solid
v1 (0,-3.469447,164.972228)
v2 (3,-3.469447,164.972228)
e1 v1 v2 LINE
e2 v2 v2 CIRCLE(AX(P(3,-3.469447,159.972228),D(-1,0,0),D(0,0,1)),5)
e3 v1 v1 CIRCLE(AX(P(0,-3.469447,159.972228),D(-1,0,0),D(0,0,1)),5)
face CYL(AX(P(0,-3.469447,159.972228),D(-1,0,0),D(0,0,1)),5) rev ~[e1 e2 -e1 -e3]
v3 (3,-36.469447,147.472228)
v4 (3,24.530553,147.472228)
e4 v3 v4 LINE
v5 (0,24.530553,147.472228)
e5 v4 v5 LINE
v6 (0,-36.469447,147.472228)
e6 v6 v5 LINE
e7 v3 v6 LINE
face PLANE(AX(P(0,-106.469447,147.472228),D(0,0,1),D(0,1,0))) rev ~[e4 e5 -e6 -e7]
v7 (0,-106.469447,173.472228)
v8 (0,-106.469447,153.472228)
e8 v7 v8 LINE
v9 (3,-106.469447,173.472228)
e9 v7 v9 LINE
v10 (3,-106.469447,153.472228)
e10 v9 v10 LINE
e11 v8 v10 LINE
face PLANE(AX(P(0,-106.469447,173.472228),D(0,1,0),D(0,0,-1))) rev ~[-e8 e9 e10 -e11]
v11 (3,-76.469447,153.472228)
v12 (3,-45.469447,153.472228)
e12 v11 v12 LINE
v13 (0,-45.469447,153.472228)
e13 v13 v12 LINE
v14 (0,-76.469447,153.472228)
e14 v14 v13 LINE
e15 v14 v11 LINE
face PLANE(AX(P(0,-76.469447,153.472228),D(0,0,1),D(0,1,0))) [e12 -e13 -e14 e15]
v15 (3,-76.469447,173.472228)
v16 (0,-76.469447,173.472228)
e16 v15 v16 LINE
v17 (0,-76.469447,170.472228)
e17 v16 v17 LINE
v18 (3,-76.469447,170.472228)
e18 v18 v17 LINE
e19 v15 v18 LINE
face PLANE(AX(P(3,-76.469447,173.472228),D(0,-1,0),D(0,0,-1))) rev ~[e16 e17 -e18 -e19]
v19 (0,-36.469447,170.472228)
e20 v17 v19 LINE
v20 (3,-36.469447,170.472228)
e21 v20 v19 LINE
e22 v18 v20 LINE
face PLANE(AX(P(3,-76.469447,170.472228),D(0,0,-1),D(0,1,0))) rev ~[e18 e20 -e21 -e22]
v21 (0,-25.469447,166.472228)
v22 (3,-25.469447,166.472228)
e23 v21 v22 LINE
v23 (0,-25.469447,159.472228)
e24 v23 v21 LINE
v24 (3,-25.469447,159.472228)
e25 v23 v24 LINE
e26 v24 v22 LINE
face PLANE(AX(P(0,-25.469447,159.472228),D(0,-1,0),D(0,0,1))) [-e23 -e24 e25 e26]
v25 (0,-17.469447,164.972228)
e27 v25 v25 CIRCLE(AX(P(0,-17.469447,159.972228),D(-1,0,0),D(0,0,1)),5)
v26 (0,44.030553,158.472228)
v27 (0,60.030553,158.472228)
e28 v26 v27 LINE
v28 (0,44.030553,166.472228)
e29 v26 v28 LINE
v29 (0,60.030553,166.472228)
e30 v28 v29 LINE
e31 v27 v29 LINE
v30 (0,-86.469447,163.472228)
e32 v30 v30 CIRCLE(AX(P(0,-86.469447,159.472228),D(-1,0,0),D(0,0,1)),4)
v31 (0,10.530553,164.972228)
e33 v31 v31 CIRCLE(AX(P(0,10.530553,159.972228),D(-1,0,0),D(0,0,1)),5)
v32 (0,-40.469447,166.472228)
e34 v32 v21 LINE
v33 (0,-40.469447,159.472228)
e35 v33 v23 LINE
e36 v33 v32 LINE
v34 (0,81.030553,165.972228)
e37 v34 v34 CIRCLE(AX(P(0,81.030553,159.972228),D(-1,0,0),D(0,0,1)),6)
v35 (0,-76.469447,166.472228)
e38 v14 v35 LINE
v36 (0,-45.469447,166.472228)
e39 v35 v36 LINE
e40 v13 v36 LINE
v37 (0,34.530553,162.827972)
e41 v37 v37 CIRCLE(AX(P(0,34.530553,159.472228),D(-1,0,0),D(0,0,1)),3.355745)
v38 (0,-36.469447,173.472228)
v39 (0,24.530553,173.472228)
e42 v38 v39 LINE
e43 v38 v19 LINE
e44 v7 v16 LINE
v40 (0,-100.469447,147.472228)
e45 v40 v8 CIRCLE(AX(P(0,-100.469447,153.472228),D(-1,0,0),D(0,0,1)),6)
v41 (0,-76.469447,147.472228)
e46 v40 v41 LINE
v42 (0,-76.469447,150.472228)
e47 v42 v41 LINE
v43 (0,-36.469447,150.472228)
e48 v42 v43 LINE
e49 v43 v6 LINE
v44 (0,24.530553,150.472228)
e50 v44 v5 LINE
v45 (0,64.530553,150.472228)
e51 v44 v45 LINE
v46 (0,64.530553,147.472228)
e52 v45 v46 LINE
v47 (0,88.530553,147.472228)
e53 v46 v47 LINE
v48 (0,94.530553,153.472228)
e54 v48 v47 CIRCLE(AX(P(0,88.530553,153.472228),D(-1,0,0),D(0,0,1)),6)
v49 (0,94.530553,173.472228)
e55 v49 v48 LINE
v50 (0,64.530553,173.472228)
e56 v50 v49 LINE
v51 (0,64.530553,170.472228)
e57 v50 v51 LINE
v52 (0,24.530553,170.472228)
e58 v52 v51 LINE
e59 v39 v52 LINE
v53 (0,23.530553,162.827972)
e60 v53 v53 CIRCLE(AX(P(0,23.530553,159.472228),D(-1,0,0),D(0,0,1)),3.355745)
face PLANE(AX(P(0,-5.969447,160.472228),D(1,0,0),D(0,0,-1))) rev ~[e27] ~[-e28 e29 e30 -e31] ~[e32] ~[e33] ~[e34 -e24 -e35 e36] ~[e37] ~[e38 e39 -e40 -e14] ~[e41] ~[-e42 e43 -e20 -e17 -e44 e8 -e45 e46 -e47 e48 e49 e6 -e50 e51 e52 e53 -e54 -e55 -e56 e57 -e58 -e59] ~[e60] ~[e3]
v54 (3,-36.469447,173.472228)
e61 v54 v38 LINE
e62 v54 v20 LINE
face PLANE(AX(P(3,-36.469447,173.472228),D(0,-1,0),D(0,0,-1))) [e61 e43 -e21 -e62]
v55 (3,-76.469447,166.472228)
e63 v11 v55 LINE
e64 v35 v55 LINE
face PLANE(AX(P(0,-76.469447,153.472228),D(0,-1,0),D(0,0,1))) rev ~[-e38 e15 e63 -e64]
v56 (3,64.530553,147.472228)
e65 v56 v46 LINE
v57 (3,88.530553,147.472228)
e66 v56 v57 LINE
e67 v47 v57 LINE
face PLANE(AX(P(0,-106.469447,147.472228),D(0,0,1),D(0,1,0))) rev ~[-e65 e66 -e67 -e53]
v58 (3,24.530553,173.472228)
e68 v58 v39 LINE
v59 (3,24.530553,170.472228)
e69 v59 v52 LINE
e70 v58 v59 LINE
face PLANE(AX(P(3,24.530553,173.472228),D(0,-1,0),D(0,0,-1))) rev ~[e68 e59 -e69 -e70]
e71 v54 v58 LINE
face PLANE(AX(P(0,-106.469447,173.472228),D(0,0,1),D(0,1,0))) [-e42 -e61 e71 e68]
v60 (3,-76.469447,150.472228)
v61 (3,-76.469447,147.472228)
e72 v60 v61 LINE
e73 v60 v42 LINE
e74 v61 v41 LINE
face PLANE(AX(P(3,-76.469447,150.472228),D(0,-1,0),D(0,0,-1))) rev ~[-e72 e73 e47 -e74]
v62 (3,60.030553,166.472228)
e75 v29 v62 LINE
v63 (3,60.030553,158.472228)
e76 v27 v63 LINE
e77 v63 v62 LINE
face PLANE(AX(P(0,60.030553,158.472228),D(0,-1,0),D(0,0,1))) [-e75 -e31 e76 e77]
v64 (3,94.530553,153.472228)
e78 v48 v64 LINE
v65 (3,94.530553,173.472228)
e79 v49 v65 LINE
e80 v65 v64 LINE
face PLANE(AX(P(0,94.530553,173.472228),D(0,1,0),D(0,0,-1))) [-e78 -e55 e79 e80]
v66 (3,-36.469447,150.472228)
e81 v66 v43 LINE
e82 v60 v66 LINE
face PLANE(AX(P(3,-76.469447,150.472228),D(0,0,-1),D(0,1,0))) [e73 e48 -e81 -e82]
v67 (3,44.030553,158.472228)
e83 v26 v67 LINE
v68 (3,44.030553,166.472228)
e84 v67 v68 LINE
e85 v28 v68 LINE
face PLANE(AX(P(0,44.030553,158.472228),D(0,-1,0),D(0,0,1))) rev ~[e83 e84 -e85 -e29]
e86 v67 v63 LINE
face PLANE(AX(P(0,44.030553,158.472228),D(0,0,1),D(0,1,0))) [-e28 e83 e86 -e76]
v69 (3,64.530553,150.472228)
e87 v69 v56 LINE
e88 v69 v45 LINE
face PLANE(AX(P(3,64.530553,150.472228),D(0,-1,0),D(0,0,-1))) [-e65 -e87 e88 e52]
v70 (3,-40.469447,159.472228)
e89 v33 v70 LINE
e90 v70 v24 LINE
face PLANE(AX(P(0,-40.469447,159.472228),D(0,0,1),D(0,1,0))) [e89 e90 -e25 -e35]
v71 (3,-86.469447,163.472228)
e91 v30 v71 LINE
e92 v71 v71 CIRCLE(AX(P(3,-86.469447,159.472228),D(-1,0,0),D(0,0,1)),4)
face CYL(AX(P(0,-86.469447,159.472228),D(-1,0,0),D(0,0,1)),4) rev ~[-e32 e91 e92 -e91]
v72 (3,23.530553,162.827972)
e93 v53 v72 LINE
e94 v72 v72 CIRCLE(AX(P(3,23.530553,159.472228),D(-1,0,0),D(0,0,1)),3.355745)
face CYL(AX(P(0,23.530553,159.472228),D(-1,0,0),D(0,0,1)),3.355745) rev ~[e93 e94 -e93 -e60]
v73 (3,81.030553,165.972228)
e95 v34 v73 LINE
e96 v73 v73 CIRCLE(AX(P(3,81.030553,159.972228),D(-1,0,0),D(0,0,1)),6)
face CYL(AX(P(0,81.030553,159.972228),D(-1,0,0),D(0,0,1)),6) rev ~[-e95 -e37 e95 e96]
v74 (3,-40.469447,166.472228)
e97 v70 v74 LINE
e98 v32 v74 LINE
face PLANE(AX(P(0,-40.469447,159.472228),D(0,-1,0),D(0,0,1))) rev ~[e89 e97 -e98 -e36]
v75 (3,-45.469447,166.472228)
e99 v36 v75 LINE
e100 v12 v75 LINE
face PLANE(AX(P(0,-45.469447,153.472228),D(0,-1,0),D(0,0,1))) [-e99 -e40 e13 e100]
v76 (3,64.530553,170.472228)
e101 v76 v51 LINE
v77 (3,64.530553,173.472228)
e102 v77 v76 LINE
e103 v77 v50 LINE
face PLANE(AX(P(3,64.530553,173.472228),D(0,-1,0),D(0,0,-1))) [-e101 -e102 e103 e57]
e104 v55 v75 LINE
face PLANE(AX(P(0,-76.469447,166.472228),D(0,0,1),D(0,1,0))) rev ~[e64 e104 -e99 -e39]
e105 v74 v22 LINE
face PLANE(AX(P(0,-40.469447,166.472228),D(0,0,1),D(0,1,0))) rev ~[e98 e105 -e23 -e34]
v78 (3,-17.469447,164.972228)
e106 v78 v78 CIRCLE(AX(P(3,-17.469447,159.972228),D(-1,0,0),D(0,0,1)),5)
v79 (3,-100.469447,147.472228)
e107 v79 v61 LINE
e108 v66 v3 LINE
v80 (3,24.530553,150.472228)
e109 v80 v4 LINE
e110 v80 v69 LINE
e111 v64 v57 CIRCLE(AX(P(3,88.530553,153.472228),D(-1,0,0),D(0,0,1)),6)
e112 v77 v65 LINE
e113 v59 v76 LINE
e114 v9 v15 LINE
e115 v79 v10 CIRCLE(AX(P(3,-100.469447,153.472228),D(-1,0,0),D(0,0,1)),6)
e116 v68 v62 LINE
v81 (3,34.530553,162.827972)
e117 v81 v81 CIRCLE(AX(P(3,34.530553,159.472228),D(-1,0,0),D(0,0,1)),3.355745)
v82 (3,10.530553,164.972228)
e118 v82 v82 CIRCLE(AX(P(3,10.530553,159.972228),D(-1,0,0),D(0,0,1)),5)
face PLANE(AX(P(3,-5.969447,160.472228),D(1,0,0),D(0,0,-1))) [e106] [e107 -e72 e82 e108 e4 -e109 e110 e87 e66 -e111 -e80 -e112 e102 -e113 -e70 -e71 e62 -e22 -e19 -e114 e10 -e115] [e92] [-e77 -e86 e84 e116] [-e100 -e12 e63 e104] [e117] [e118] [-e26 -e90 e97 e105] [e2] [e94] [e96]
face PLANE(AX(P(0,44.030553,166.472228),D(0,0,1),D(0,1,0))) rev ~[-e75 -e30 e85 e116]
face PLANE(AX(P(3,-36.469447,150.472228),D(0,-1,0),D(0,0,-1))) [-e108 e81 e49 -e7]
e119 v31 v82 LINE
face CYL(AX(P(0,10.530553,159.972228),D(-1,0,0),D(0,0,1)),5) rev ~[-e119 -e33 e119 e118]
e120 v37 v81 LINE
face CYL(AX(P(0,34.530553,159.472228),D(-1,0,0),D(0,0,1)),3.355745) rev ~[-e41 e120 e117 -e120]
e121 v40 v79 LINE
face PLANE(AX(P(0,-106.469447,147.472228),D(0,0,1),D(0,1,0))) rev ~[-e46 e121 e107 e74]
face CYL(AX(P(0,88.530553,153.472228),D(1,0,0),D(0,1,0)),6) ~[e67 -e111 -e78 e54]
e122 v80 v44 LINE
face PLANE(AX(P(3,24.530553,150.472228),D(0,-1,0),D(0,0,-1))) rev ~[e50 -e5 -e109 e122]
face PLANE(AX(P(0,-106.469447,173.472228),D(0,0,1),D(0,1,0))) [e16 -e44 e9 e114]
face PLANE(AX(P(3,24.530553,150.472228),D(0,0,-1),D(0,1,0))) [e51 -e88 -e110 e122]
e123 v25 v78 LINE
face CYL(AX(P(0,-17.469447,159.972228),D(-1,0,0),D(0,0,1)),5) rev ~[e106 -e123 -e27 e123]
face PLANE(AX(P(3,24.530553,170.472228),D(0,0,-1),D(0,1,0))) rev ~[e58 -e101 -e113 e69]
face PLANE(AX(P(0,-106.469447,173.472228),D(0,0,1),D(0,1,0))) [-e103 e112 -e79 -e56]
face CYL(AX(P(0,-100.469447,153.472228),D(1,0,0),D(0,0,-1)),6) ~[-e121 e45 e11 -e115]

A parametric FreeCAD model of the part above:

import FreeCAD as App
import Part
import Sketcher
from FreeCAD import Vector
Q = App.Units.Quantity


def edges_at(feature, points):
    """Names of the edges that pass closest to the given points."""
    edges = feature.Shape.Edges
    near = lambda p: min(range(len(edges)), key=lambda i: edges[i].distToShape(Part.Vertex(*p))[0])
    return sorted({f"Edge{near(p) + 1}" for p in points})


def add_polygon(sketch, points):
    """Adds a closed chain of lines whose ends are joined by coincident constraints."""
    first, n = sketch.GeometryCount, len(points)
    for a, b in zip(points, points[1:] + points[:1]):
        sketch.addGeometry(Part.LineSegment(App.Vector(*a, 0), App.Vector(*b, 0)), False)
    for i in range(n):
        sketch.addConstraint(Sketcher.Constraint("Coincident", first + i, 2, first + (i + 1) % n, 1))

doc = App.newDocument("Part")
params = doc.addObject("Spreadsheet::Sheet", "Params")
for row, (alias, value) in enumerate([
    ("sketch1_width", "201 mm"),
    ("sketch1_height", "26 mm"),
    ("pad1_length", "3 mm"),
    ("sketch2_width", "40 mm"),
    ("sketch2_height", "3 mm"),
    ("pocket1_length", "3 mm"),
    ("fillet_radius", "6 mm"),
    ("fillet2_radius", "6 mm"),
    ("sketch3_diameter", "8 mm"),
    ("sketch3_diameter2", "10 mm"),
    ("sketch3_diameter3", "12 mm"),
    ("sketch3_width", "31 mm"),
    ("sketch3_width2", "15 mm"),
    ("pocket2_length", "3 mm"),
], start=1):
    params.set(f"A{row}", alias)
    params.set(f"B{row}", "=" + value)
    params.setAlias(f"B{row}", alias)

body = doc.addObject("PartDesign::Body", "Body")

# Sketch on YZ plane
sketch1 = body.newObject("Sketcher::SketchObject", "Sketch")
sketch1.AttachmentSupport = (doc.getObject("YZ_Plane"), [""])
sketch1.MapMode = "FlatFace"
add_polygon(sketch1, [(95, 173), (-106, 173), (-106, 147), (95, 147)])  # lines 0-3
sketch1.addConstraint([
    Sketcher.Constraint("Horizontal", 0),
    Sketcher.Constraint("Vertical", 1),
    Sketcher.Constraint("Horizontal", 2),
    Sketcher.Constraint("Vertical", 3),
    Sketcher.Constraint("DistanceX", 0, 2, 0, 1, Q("201 mm")),
    Sketcher.Constraint("DistanceY", 1, 2, 1, 1, Q("26 mm")),
    Sketcher.Constraint("DistanceX", 0, 2, -1, 1, Q("106.469447 mm")),
    Sketcher.Constraint("DistanceY", -1, 1, 0, 2, Q("173.472228 mm")),
])
sketch1.setExpression("Constraints[8]", "Params.sketch1_width")
sketch1.setExpression("Constraints[9]", "Params.sketch1_height")
pad1 = body.newObject("PartDesign::Pad", "Pad")
pad1.Profile = sketch1
pad1.setExpression("Length", "Params.pad1_length")

# Sketch on YZ plane
sketch2 = body.newObject("Sketcher::SketchObject", "Sketch001")
sketch2.AttachmentSupport = (doc.getObject("YZ_Plane"), [""])
sketch2.MapMode = "FlatFace"
sketch2.AttachmentOffset = App.Placement(Vector(0, 0, 3), App.Rotation())
add_polygon(sketch2, [(64.5, 150.5), (24.5, 150.5), (24.5, 147.5), (64.5, 147.5)])  # lines 0-3
add_polygon(sketch2, [(64.5, 173.5), (24.5, 173.5), (24.5, 170.5), (64.5, 170.5)])  # lines 4-7
add_polygon(sketch2, [(-36.5, 173.5), (-76.5, 173.5), (-76.5, 170.5), (-36.5, 170.5)])  # lines 8-11
add_polygon(sketch2, [(-36.5, 150.5), (-76.5, 150.5), (-76.5, 147.5), (-36.5, 147.5)])  # lines 12-15
sketch2.addConstraint([
    Sketcher.Constraint("Horizontal", 0),
    Sketcher.Constraint("Vertical", 1),
    Sketcher.Constraint("Horizontal", 2),
    Sketcher.Constraint("Vertical", 3),
    Sketcher.Constraint("Horizontal", 4),
    Sketcher.Constraint("Vertical", 5),
    Sketcher.Constraint("Horizontal", 6),
    Sketcher.Constraint("Vertical", 7),
    Sketcher.Constraint("Horizontal", 8),
    Sketcher.Constraint("Vertical", 9),
    Sketcher.Constraint("Horizontal", 10),
    Sketcher.Constraint("Vertical", 11),
    Sketcher.Constraint("Horizontal", 12),
    Sketcher.Constraint("Vertical", 13),
    Sketcher.Constraint("Horizontal", 14),
    Sketcher.Constraint("Vertical", 15),
    Sketcher.Constraint("Horizontal", 7, 2, 8, 2),
    Sketcher.Constraint("Horizontal", 6, 2, 9, 2),
    Sketcher.Constraint("Horizontal", 3, 2, 12, 2),
    Sketcher.Constraint("Horizontal", 2, 2, 13, 2),
    Sketcher.Constraint("Vertical", 1, 2, 4, 2),
    Sketcher.Constraint("Vertical", 3, 2, 6, 2),
    Sketcher.Constraint("Vertical", 9, 2, 12, 2),
    Sketcher.Constraint("Vertical", 11, 2, 14, 2),
    Sketcher.Constraint("Equal", 6, 8),
    Sketcher.Constraint("Equal", 3, 5),
    Sketcher.Constraint("DistanceX", 0, 2, 0, 1, Q("40 mm")),
    Sketcher.Constraint("DistanceY", 1, 2, 1, 1, Q("3 mm")),
    Sketcher.Constraint("DistanceY", 0, 2, 4, 2, Q("23 mm")),
    Sketcher.Constraint("DistanceX", 8, 2, 4, 2, Q("101 mm")),
    Sketcher.Constraint("DistanceX", -1, 1, 0, 2, Q("24.530553 mm")),
    Sketcher.Constraint("DistanceY", -1, 1, 0, 2, Q("150.472228 mm")),
])
sketch2.setExpression("Constraints[42]", "Params.sketch2_width")
sketch2.setExpression("Constraints[43]", "Params.sketch2_height")
pocket1 = body.newObject("PartDesign::Pocket", "Pocket")
pocket1.Profile = sketch2
pocket1.setExpression("Length", "Params.pocket1_length")
doc.recompute()

fillet = body.newObject("PartDesign::Fillet", "Fillet")
fillet.Base = (pocket1, edges_at(pocket1, [(1.5, 94.531, 147.472)]))
fillet.setExpression("Radius", "Params.fillet_radius")
doc.recompute()

fillet2 = body.newObject("PartDesign::Fillet", "Fillet001")
fillet2.Base = (fillet, edges_at(fillet, [(1.5, -106.469, 147.472)]))
fillet2.setExpression("Radius", "Params.fillet2_radius")

# Sketch on YZ plane
sketch3 = body.newObject("Sketcher::SketchObject", "Sketch002")
sketch3.AttachmentSupport = (doc.getObject("YZ_Plane"), [""])
sketch3.MapMode = "FlatFace"
sketch3.addGeometry(Part.Circle(Vector(-86.5, 159.5, 0), Vector(0, 0, 1), 4), False)  # 0
sketch3.addGeometry(Part.Circle(Vector(-17.5, 160, 0), Vector(0, 0, 1), 5), False)  # 1
sketch3.addGeometry(Part.Circle(Vector(-3.5, 160, 0), Vector(0, 0, 1), 5), False)  # 2
sketch3.addGeometry(Part.Circle(Vector(10.5, 160, 0), Vector(0, 0, 1), 5), False)  # 3
sketch3.addGeometry(Part.Circle(Vector(23.5, 159.5, 0), Vector(0, 0, 1), 3.4), False)  # 4
sketch3.addGeometry(Part.Circle(Vector(34.5, 159.5, 0), Vector(0, 0, 1), 3.4), False)  # 5
sketch3.addGeometry(Part.Circle(Vector(81, 160, 0), Vector(0, 0, 1), 6), False)  # 6
add_polygon(sketch3, [(-45.5, 153.5), (-76.5, 153.5), (-76.5, 166.5), (-45.5, 166.5)])  # lines 7-10
add_polygon(sketch3, [(-25.5, 159.5), (-40.5, 159.5), (-40.5, 166.5), (-25.5, 166.5)])  # lines 11-14
add_polygon(sketch3, [(60, 158.5), (44, 158.5), (44, 166.5), (60, 166.5)])  # lines 15-18
sketch3.addConstraint([
    Sketcher.Constraint("Horizontal", 7),
    Sketcher.Constraint("Vertical", 8),
    Sketcher.Constraint("Horizontal", 9),
    Sketcher.Constraint("Vertical", 10),
    Sketcher.Constraint("Horizontal", 11),
    Sketcher.Constraint("Vertical", 12),
    Sketcher.Constraint("Horizontal", 13),
    Sketcher.Constraint("Vertical", 14),
    Sketcher.Constraint("Horizontal", 15),
    Sketcher.Constraint("Vertical", 16),
    Sketcher.Constraint("Horizontal", 17),
    Sketcher.Constraint("Vertical", 18),
    Sketcher.Constraint("Equal", 1, 2),
    Sketcher.Constraint("Equal", 2, 3),
    Sketcher.Constraint("Equal", 4, 5),
    Sketcher.Constraint("Horizontal", 1, 3, 2, 3),
    Sketcher.Constraint("Horizontal", 2, 3, 3, 3),
    Sketcher.Constraint("Horizontal", 0, 3, 4, 3),
    Sketcher.Constraint("Horizontal", 4, 3, 5, 3),
    Sketcher.Constraint("Horizontal", 3, 3, 6, 3),
    Sketcher.Constraint("Horizontal", 5, 3, 11, 2),
    Sketcher.Constraint("Horizontal", 9, 2, 12, 2),
    Sketcher.Constraint("Horizontal", 13, 2, 16, 2),
    Sketcher.Constraint("Diameter", 0, Q("8 mm")),
    Sketcher.Constraint("Diameter", 1, Q("10 mm")),
    Sketcher.Constraint("Diameter", 6, Q("12 mm")),
    Sketcher.Constraint("DistanceX", 7, 2, 7, 1, Q("31 mm")),
    Sketcher.Constraint("DistanceX", 11, 2, 11, 1, Q("15 mm")),
    Sketcher.Constraint("DistanceX", 15, 2, 15, 1, Q("16 mm")),
    Sketcher.Constraint("DistanceY", 8, 1, 8, 2, Q("13 mm")),
    Sketcher.Constraint("DistanceY", 12, 1, 12, 2, Q("7 mm")),
    Sketcher.Constraint("DistanceY", 16, 1, 16, 2, Q("8 mm")),
    Sketcher.Constraint("DistanceX", 0, 3, 1, 3, Q("69 mm")),
    Sketcher.Constraint("DistanceX", 1, 3, 2, 3, Q("14 mm")),
    Sketcher.Constraint("DistanceX", 2, 3, 3, 3, Q("14 mm")),
    Sketcher.Constraint("DistanceX", 3, 3, 4, 3, Q("13 mm")),
    Sketcher.Constraint("DistanceX", 4, 3, 5, 3, Q("11 mm")),
    Sketcher.Constraint("DistanceX", 0, 3, 7, 2, Q("10 mm")),
    Sketcher.Constraint("DistanceX", 10, 2, 11, 2, Q("5 mm")),
    Sketcher.Constraint("DistanceX", 15, 2, 6, 3, Q("37 mm")),
    Sketcher.Constraint("DistanceY", 0, 3, 1, 3, Q("0.5 mm")),
    Sketcher.Constraint("DistanceX", 5, 3, 6, 3, Q("46.5 mm")),
    Sketcher.Constraint("Diameter", 4, Q("6.711489 mm")),
    Sketcher.Constraint("DistanceX", 0, 3, -1, 1, Q("86.469447 mm")),
    Sketcher.Constraint("DistanceY", -1, 1, 0, 3, Q("159.472228 mm")),
])
sketch3.setExpression("Constraints[35]", "Params.sketch3_diameter")
sketch3.setExpression("Constraints[36]", "Params.sketch3_diameter2")
sketch3.setExpression("Constraints[37]", "Params.sketch3_diameter3")
sketch3.setExpression("Constraints[38]", "Params.sketch3_width")
sketch3.setExpression("Constraints[39]", "Params.sketch3_width2")
pocket2 = body.newObject("PartDesign::Pocket", "Pocket001")
pocket2.Profile = sketch3
pocket2.setExpression("Length", "Params.pocket2_length")
pocket2.Reversed = True

doc.recompute()
